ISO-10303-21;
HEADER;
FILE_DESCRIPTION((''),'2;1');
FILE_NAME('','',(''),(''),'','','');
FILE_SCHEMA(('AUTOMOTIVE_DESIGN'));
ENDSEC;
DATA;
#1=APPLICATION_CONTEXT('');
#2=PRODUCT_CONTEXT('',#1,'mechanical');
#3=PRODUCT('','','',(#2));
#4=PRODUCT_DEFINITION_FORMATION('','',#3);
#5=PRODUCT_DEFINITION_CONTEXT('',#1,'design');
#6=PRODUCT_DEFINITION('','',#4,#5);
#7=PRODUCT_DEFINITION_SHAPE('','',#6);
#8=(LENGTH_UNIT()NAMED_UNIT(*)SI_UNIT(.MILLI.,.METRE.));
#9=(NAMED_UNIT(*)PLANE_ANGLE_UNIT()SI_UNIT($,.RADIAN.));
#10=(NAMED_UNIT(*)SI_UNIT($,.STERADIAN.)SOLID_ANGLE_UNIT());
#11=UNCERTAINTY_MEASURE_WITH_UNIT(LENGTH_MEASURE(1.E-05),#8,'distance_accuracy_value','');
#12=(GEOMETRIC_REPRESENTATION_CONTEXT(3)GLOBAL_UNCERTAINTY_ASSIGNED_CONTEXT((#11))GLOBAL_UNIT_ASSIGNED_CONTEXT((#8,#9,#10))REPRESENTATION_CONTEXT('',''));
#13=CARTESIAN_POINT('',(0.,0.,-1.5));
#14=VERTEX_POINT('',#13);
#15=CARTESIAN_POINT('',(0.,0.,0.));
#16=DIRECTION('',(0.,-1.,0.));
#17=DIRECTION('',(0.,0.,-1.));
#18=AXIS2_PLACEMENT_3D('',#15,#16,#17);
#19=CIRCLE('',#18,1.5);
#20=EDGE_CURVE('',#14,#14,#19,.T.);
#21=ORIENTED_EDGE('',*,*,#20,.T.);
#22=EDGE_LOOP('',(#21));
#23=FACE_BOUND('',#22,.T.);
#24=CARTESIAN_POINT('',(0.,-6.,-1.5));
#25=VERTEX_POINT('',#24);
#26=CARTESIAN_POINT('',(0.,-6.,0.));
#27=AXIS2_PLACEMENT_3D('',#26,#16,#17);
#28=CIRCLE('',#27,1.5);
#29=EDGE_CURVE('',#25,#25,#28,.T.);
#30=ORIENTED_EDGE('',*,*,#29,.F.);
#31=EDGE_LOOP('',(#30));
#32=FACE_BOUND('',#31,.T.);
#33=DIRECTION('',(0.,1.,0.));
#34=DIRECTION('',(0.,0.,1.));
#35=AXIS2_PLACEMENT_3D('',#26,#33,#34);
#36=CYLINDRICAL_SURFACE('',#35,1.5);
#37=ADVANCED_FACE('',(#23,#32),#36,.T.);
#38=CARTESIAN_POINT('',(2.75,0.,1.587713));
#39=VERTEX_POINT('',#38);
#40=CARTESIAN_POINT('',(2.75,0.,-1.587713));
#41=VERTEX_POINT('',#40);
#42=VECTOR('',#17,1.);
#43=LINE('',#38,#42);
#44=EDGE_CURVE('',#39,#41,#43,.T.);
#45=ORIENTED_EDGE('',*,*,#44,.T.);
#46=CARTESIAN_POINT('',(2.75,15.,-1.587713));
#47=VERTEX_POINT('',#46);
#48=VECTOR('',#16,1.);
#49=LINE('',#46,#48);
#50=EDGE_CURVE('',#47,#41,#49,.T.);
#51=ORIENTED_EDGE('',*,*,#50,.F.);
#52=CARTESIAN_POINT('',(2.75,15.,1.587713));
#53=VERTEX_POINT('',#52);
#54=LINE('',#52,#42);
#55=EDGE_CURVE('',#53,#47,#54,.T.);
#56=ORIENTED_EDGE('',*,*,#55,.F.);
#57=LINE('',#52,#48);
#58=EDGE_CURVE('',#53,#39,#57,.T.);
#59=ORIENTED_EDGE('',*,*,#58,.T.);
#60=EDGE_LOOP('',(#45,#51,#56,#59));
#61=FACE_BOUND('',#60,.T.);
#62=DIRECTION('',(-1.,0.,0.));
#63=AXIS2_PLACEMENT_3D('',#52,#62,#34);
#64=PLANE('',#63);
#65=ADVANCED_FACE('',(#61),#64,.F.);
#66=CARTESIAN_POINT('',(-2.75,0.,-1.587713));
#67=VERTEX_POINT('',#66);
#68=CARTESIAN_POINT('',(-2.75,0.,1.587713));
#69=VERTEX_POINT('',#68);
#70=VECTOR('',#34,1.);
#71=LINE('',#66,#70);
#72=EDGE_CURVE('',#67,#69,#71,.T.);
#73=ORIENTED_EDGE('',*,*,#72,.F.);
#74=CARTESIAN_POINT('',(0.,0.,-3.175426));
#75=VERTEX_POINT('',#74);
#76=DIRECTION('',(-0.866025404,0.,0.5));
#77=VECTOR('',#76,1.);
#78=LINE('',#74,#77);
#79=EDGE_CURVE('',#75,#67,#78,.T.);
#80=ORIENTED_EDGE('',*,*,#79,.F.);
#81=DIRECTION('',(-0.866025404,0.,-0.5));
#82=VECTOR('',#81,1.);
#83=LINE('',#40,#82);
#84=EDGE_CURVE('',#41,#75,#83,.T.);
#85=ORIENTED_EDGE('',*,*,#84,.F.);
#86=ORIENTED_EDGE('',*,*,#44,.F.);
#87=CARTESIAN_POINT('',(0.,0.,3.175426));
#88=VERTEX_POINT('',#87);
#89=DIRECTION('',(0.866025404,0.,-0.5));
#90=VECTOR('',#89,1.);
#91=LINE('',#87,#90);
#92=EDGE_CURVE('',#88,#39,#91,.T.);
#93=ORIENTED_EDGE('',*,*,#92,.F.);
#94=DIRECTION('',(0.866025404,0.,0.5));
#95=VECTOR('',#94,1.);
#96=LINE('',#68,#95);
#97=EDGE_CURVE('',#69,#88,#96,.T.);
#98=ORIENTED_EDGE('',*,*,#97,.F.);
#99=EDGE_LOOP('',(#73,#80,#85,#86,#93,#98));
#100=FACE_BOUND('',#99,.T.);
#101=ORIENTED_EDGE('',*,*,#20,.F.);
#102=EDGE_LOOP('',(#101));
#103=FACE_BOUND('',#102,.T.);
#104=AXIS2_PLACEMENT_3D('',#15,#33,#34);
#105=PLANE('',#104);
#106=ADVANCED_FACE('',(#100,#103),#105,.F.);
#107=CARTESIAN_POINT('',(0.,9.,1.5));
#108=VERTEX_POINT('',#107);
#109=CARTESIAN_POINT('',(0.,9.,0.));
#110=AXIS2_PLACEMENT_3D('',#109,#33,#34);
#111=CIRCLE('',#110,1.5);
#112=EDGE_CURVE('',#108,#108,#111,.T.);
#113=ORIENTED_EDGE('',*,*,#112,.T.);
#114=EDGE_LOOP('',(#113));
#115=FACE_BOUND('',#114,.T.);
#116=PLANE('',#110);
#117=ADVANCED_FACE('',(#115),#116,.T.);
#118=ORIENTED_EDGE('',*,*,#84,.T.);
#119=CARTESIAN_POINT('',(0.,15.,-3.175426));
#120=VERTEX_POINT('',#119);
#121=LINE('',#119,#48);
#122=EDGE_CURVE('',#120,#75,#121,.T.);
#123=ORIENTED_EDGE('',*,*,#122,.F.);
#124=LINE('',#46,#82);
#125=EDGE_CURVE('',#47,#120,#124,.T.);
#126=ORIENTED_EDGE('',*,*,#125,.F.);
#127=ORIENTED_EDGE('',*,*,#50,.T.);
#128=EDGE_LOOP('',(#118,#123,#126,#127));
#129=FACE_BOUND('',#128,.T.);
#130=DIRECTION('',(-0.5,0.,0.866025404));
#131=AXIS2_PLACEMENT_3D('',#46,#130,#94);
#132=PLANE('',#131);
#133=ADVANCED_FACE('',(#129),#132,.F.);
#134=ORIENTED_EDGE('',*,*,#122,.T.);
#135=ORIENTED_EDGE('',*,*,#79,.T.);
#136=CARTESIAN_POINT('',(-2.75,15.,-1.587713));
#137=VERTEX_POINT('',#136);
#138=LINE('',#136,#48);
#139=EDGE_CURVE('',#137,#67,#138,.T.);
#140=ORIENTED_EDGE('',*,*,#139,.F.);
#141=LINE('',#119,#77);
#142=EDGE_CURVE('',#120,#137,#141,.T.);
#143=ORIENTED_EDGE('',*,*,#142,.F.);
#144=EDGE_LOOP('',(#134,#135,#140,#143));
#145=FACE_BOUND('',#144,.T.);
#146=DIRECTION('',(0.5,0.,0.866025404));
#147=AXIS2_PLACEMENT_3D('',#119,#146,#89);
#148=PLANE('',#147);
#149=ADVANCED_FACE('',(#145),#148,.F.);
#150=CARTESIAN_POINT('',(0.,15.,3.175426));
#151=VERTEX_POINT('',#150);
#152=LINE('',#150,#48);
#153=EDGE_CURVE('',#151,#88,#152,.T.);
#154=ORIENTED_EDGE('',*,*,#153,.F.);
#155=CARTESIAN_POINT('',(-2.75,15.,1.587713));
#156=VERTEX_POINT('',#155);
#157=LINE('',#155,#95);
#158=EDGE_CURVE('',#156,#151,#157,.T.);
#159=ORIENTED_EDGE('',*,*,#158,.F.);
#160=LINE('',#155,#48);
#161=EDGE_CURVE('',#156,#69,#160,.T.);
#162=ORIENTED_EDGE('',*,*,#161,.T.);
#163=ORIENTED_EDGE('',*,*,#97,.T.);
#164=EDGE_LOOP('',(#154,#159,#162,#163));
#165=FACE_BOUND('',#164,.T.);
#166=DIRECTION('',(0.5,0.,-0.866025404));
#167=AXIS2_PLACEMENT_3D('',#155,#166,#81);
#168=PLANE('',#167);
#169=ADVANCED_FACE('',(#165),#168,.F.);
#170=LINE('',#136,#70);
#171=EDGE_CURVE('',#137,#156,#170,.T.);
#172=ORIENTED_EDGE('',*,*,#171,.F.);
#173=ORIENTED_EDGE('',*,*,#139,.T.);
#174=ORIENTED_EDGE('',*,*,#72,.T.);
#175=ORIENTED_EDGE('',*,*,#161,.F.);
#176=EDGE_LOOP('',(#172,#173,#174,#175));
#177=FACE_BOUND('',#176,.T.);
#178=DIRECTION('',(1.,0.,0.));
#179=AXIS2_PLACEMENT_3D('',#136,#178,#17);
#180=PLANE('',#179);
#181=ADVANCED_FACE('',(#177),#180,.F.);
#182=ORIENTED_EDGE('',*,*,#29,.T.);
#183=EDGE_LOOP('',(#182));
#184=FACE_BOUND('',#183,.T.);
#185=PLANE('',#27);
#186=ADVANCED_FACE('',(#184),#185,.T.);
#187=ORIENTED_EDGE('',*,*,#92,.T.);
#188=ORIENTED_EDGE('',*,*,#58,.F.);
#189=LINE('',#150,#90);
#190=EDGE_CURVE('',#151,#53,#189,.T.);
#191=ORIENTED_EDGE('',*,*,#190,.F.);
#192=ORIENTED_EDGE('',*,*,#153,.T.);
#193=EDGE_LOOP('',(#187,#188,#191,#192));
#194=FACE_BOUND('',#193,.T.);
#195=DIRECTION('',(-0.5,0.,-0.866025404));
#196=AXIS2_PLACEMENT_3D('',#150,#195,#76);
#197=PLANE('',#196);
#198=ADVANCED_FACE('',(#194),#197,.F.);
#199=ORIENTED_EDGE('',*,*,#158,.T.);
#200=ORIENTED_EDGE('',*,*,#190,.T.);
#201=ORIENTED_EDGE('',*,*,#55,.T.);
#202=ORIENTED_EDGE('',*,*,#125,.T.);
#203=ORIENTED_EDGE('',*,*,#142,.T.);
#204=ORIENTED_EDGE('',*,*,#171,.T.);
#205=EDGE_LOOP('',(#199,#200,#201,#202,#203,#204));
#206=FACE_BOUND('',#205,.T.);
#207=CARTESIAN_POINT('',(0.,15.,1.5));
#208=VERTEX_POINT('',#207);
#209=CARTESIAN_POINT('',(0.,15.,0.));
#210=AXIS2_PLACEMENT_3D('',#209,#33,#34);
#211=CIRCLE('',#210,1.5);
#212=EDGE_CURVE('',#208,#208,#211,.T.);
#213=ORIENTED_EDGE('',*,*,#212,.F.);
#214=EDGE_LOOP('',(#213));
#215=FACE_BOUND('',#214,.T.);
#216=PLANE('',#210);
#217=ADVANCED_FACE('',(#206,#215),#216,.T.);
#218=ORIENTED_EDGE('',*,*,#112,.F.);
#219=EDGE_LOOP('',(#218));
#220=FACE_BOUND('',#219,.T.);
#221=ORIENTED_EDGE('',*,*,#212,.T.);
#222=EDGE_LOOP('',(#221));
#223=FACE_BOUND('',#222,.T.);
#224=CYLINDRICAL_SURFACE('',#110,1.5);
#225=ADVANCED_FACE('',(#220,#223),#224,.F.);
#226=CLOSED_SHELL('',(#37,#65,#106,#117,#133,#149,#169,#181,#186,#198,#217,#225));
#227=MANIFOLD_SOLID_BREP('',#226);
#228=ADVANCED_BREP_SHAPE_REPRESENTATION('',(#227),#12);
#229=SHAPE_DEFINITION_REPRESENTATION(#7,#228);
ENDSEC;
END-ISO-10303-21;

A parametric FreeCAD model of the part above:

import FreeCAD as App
import Part
import Sketcher

V = App.Vector
Q = App.Units.Quantity


def add_polygon(sketch, points):
    """Adds a closed chain of lines whose ends are joined by coincident constraints."""
    first, n = sketch.GeometryCount, len(points)
    for a, b in zip(points, points[1:] + points[:1]):
        sketch.addGeometry(Part.LineSegment(App.Vector(*a, 0), App.Vector(*b, 0)), False)
    for i in range(n):
        sketch.addConstraint(Sketcher.Constraint("Coincident", first + i, 2, first + (i + 1) % n, 1))

doc = App.newDocument("Part")
body = doc.addObject("PartDesign::Body", "Body")

sketch1 = body.newObject("Sketcher::SketchObject", "Sketch")
sketch1.AttachmentSupport = (doc.getObject("XZ_Plane"), [""])
sketch1.MapMode = "FlatFace"
add_polygon(sketch1, [(0, -3.2), (-2.8, -1.6), (-2.8, 1.6), (0, 3.2), (2.8, 1.6), (2.8, -1.6)])
sketch1.addConstraint([
    Sketcher.Constraint("Vertical", 1),
    Sketcher.Constraint("Vertical", 4),
    Sketcher.Constraint("Symmetric", 0, 2, 3, 2, -1, 1),
    Sketcher.Constraint("Symmetric", 2, 2, 5, 2, -1, 1),
    Sketcher.Constraint("PointOnObject", 2, 2, -2),
    Sketcher.Constraint("Parallel", 2, 5),
    Sketcher.Constraint("Horizontal", 1, 2, 3, 2),
    Sketcher.Constraint("Angle", 0, Q("150 deg")),
    Sketcher.Constraint("DistanceX", 1, 2, 3, 2, 5.5),
    Sketcher.Constraint("DistanceY", 1, 1, 1, 2, 3.175426),
])
pad1 = body.newObject("PartDesign::Pad", "Pad")
pad1.Profile = sketch1
pad1.Length = 15
pad1.Reversed = True

sketch2 = body.newObject("Sketcher::SketchObject", "Sketch001")
sketch2.AttachmentSupport = (doc.getObject("XZ_Plane"), [""])
sketch2.MapMode = "FlatFace"
sketch2.addGeometry(Part.Circle(V(0, 0, 0), V(0, 0, 1), 1.5), False)
sketch2.addConstraint([
    Sketcher.Constraint("Coincident", 0, 3, -1, 1),
    Sketcher.Constraint("Diameter", 0, 3.0),
])
pad2 = body.newObject("PartDesign::Pad", "Pad001")
pad2.Profile = sketch2
pad2.Length = 6

sketch3 = body.newObject("Sketcher::SketchObject", "Sketch002")
sketch3.AttachmentSupport = (doc.getObject("XZ_Plane"), [""])
sketch3.MapMode = "FlatFace"
sketch3.AttachmentOffset = App.Placement(V(0, 0, -15), App.Rotation())
sketch3.addGeometry(Part.Circle(V(0, 0, 0), V(0, 0, 1), 1.5), False)
sketch3.addConstraint([
    Sketcher.Constraint("Coincident", 0, 3, -1, 1),
    Sketcher.Constraint("Diameter", 0, 3.0),
])
pocket1 = body.newObject("PartDesign::Pocket", "Pocket")
pocket1.Profile = sketch3
pocket1.Length = 6
pocket1.Reversed = True

doc.recompute()
